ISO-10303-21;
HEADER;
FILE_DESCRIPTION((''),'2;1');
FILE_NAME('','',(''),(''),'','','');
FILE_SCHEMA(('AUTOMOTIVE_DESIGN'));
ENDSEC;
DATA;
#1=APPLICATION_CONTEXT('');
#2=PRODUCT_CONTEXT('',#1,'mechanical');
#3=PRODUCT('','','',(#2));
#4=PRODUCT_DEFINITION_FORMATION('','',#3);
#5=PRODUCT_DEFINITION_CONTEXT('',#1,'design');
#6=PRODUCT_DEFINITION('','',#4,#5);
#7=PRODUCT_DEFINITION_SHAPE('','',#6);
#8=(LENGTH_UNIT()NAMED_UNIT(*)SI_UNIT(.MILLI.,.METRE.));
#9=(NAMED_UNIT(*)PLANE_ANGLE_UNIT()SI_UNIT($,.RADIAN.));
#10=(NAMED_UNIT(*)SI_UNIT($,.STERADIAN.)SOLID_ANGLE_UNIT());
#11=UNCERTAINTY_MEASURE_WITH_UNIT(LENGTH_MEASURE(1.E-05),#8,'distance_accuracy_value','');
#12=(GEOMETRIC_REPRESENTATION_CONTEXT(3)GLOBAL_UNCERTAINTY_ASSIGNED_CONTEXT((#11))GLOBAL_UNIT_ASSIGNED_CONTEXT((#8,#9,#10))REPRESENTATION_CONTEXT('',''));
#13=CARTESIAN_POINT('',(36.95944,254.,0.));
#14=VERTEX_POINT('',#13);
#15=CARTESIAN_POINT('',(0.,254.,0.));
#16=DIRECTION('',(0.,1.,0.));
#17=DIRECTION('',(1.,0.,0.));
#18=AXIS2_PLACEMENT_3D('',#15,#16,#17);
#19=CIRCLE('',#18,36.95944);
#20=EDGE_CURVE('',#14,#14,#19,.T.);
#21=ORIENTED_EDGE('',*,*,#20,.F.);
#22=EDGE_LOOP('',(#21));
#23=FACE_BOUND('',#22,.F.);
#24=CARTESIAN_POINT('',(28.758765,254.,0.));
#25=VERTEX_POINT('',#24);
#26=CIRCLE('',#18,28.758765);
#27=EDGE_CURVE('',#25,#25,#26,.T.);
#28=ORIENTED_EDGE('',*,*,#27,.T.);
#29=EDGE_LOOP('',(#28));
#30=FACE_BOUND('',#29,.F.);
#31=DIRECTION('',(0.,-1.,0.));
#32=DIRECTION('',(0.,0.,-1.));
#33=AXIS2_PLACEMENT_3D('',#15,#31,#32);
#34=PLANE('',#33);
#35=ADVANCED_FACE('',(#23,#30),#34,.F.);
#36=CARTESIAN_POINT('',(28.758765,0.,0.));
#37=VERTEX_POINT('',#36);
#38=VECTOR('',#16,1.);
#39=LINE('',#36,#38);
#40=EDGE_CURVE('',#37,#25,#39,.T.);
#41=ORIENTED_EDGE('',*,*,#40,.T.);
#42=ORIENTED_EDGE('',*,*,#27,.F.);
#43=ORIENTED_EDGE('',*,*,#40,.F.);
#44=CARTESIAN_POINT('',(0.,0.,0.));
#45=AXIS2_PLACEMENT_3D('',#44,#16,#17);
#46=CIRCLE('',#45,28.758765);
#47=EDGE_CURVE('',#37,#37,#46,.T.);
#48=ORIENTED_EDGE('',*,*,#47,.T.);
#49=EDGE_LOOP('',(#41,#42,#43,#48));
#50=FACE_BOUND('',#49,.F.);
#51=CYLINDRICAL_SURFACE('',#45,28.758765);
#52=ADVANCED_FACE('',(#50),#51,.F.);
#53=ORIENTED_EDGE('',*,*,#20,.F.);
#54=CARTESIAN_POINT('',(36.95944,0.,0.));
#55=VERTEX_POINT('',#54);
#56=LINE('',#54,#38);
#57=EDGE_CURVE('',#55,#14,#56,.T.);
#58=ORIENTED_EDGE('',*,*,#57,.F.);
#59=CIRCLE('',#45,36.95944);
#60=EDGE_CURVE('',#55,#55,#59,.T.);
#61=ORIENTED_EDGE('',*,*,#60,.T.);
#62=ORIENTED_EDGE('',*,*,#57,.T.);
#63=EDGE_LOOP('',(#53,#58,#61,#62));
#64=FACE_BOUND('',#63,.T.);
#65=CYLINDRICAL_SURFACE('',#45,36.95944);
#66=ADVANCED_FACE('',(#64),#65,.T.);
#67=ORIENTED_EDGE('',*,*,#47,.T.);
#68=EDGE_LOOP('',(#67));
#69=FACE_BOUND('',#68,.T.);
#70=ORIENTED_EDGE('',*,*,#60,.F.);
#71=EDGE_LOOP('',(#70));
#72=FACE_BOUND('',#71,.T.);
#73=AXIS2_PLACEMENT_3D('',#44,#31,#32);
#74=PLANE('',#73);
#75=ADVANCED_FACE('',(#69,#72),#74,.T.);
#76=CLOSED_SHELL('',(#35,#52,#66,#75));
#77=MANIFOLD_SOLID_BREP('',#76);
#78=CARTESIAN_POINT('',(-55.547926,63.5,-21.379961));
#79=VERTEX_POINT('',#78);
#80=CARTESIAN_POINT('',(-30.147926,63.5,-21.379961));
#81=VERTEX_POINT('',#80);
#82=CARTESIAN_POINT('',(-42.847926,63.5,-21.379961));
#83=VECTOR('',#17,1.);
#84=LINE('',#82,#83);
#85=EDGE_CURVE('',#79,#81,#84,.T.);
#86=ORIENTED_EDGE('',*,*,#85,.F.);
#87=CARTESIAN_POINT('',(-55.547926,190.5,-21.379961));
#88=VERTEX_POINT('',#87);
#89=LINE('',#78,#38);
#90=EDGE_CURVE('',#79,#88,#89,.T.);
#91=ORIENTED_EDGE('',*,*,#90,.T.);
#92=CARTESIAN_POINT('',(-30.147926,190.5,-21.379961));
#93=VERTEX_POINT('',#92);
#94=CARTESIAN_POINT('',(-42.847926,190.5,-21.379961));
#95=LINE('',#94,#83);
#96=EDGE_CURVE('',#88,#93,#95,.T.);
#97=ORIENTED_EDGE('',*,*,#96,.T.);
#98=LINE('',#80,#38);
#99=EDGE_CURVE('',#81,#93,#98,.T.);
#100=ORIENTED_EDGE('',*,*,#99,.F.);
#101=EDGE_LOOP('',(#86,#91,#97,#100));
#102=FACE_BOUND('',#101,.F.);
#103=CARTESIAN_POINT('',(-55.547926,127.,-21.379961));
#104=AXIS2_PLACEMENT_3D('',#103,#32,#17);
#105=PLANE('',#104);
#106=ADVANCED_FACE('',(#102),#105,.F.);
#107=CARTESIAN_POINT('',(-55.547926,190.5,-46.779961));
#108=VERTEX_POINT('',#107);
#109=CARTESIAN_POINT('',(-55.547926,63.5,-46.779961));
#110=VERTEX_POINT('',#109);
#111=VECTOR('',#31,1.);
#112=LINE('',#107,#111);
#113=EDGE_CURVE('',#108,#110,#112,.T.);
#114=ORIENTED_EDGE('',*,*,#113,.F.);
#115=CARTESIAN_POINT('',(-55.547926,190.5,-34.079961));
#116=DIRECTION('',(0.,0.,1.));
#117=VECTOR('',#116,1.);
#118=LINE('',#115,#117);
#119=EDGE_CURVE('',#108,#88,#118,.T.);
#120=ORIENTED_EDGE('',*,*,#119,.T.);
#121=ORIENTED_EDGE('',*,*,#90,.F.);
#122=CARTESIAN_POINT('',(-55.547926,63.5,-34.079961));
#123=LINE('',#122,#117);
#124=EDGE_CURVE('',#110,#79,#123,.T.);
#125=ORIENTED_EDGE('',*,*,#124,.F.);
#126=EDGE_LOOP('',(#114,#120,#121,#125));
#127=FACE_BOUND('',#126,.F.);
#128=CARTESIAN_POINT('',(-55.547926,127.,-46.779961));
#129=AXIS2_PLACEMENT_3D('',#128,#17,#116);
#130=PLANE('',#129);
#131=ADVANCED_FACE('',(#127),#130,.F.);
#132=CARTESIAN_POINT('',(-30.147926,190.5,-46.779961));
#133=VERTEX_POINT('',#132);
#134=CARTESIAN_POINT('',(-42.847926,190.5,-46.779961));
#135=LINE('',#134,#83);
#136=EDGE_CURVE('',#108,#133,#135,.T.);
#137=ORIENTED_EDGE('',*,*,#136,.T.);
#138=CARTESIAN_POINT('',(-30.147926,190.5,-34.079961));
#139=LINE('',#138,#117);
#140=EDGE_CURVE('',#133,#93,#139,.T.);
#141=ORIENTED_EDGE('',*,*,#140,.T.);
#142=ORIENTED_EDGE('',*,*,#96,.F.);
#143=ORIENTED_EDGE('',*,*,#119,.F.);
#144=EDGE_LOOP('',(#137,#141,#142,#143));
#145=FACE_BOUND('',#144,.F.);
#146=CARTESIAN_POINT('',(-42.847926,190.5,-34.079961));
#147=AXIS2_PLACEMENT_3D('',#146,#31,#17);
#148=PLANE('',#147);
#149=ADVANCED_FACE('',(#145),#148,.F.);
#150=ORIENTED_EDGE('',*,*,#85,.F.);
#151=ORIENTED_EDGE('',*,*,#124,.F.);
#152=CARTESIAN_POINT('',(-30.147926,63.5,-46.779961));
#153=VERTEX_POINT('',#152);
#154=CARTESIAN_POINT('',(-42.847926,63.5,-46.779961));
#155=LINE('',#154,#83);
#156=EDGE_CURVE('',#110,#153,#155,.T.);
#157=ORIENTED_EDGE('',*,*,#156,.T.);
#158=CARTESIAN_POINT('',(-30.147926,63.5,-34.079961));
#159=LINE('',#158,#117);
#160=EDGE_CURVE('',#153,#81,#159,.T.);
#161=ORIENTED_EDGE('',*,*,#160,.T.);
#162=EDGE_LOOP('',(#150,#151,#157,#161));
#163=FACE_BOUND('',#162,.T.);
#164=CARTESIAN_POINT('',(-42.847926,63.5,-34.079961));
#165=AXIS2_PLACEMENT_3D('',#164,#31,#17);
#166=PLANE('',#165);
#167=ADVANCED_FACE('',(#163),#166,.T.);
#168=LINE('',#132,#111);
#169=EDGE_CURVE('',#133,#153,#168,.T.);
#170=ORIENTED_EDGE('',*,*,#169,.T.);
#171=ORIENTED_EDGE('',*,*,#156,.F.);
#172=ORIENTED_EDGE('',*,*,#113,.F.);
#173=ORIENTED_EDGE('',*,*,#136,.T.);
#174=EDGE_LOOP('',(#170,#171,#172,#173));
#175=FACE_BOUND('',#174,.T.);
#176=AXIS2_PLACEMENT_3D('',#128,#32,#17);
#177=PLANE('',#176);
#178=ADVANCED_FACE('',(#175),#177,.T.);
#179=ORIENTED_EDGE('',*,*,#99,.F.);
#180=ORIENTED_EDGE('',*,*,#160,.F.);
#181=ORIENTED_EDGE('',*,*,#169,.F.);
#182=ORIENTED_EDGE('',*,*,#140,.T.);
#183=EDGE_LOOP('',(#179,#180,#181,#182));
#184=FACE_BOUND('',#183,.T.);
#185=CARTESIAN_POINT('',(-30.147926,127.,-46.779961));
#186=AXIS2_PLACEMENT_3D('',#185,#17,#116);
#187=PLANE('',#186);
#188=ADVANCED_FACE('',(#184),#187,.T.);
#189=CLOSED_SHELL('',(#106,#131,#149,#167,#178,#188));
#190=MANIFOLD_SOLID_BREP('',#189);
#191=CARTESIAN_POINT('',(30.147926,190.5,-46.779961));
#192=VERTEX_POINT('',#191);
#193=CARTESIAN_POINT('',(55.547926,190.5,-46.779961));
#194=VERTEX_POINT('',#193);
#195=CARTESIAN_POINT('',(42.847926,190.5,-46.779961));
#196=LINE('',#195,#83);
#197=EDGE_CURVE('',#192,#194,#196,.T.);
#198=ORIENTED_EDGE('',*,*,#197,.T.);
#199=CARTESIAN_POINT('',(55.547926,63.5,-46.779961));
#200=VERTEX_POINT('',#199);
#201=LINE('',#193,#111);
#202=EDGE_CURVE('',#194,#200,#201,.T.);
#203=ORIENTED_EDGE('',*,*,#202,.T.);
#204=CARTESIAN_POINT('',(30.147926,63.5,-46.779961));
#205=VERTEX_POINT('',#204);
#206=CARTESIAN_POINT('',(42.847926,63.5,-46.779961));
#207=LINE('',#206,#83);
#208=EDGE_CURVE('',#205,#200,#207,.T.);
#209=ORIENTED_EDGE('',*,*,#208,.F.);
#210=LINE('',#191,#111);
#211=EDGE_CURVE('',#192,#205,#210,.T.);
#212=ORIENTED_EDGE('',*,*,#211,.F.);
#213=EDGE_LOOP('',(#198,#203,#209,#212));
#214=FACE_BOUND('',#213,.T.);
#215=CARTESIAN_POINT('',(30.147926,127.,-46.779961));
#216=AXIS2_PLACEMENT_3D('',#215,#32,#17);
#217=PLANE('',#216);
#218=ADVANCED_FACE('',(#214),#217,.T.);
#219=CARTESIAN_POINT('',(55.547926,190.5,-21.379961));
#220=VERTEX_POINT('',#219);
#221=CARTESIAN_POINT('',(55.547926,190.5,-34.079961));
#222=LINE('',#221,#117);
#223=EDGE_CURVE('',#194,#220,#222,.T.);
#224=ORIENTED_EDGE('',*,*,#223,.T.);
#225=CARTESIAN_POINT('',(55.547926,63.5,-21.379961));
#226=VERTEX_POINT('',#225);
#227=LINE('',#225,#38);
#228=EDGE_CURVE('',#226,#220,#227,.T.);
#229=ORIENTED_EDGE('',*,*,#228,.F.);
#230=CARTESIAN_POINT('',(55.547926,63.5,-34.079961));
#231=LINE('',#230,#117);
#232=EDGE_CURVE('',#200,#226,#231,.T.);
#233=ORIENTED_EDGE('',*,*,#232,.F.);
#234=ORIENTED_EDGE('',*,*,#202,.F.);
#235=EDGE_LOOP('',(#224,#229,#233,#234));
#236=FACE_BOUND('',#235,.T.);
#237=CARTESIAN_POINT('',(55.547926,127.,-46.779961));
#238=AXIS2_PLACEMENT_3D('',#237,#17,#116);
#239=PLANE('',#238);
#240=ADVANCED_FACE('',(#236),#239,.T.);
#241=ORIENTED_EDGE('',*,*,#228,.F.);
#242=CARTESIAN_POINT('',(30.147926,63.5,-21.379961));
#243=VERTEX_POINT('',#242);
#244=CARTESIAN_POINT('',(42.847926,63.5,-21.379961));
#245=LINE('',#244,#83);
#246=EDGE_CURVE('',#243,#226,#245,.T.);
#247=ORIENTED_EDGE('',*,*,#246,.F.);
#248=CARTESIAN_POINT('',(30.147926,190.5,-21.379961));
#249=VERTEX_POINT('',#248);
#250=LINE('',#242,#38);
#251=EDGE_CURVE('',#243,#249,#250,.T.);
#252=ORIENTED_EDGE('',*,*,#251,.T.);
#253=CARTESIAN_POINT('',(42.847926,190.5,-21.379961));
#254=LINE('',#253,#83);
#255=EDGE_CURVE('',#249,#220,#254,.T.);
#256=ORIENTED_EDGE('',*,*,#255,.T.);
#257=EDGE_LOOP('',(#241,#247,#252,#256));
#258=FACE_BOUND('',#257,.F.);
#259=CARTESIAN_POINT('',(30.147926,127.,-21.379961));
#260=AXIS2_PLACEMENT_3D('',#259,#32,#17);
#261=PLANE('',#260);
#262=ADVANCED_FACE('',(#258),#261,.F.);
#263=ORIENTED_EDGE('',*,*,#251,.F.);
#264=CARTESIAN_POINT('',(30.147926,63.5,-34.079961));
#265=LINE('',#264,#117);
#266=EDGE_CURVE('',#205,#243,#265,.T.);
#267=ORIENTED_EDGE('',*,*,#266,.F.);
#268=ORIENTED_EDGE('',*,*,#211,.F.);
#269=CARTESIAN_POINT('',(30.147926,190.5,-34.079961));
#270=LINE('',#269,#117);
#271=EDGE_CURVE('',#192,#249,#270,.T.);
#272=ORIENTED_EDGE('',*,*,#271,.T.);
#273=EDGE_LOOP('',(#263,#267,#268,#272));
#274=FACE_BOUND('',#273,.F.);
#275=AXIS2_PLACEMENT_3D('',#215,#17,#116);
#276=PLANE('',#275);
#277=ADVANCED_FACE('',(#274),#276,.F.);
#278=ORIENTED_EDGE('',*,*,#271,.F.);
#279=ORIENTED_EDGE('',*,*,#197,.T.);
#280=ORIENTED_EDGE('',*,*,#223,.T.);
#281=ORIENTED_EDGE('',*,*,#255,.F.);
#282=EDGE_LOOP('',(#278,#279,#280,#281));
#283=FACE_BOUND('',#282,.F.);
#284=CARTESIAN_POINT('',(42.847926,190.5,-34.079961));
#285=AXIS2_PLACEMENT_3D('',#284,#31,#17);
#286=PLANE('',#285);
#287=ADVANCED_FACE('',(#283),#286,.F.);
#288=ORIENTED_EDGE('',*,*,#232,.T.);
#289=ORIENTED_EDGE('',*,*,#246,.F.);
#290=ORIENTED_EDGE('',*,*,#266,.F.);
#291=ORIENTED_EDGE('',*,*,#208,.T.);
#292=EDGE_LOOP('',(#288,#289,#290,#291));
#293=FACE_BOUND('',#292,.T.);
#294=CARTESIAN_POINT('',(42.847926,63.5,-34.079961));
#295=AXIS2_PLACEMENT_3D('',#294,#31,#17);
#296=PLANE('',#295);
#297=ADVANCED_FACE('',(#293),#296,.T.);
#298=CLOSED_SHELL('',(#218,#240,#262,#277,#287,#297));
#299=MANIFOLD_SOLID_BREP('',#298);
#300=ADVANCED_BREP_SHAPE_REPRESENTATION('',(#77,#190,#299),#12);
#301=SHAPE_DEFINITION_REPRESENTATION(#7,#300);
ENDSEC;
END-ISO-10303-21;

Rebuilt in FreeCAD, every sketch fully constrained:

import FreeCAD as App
import Part
import Sketcher
Q = App.Units.Quantity

doc = App.newDocument("Part")
body = doc.addObject("PartDesign::Body", "Body")

# Sketch on XZ plane
sketch1 = doc.addObject("Sketcher::SketchObject", "Sketch")
body.addObject(sketch1)
sketch1.AttachmentSupport = (doc.XZ_Plane, [""])
sketch1.MapMode = "FlatFace"
sketch1.addGeometry(Part.Circle(App.Vector(0, 0, 0), App.Vector(0, 0, 1), 37), False)
sketch1.addGeometry(Part.Circle(App.Vector(0, 0, 0), App.Vector(0, 0, 1), 29), False)
sketch1.addConstraint(Sketcher.Constraint("Coincident", 0, 3, -1, 1))
sketch1.addConstraint(Sketcher.Constraint("Coincident", 1, 3, -1, 1))
sketch1.addConstraint(Sketcher.Constraint("Diameter", 0, 73.91888))
sketch1.addConstraint(Sketcher.Constraint("Diameter", 1, 57.51753))

# Sketch on XY plane
sketch2 = doc.addObject("Sketcher::SketchObject", "Sketch001")
body.addObject(sketch2)
sketch2.AttachmentSupport = (doc.XY_Plane, [""])
sketch2.MapMode = "FlatFace"
sketch2.addGeometry(Part.LineSegment(App.Vector(0, 0, 0), App.Vector(0, 254, 0)), False)
sketch2.addConstraint(Sketcher.Constraint("Vertical", 0))
sketch2.addConstraint(Sketcher.Constraint("Coincident", 0, 1, -1, 1))
sketch2.addConstraint(Sketcher.Constraint("DistanceY", 0, 1, 0, 2, Q("10 in")))
doc.recompute()

additivepipe = doc.addObject("PartDesign::AdditivePipe", "AdditivePipe")
body.addObject(additivepipe)
additivepipe.Profile = sketch1
additivepipe.Spine = (sketch2, ["Edge1"])
body2 = doc.addObject("PartDesign::Body", "Body001")
body2.AllowCompound = True

# Sketch on XZ plane
sketch3 = doc.addObject("Sketcher::SketchObject", "Sketch002")
body2.addObject(sketch3)
sketch3.AttachmentSupport = (doc.getObject("XZ_Plane001"), [""])
sketch3.MapMode = "FlatFace"
sketch3.AttachmentOffset = App.Placement(App.Vector(0, 0, -5 * 25.4), App.Rotation())
sketch3.addGeometry(Part.LineSegment(App.Vector(30, -21, 0), App.Vector(30, -47, 0)), False)
sketch3.addGeometry(Part.LineSegment(App.Vector(30, -47, 0), App.Vector(56, -47, 0)), False)
sketch3.addGeometry(Part.LineSegment(App.Vector(56, -47, 0), App.Vector(56, -21, 0)), False)
sketch3.addGeometry(Part.LineSegment(App.Vector(56, -21, 0), App.Vector(30, -21, 0)), False)
sketch3.addGeometry(Part.LineSegment(App.Vector(-56, -21, 0), App.Vector(-56, -47, 0)), False)
sketch3.addGeometry(Part.LineSegment(App.Vector(-56, -47, 0), App.Vector(-30, -47, 0)), False)
sketch3.addGeometry(Part.LineSegment(App.Vector(-30, -47, 0), App.Vector(-30, -21, 0)), False)
sketch3.addGeometry(Part.LineSegment(App.Vector(-30, -21, 0), App.Vector(-56, -21, 0)), False)
sketch3.addConstraint(Sketcher.Constraint("Coincident", 0, 2, 1, 1))
sketch3.addConstraint(Sketcher.Constraint("Coincident", 1, 2, 2, 1))
sketch3.addConstraint(Sketcher.Constraint("Coincident", 2, 2, 3, 1))
sketch3.addConstraint(Sketcher.Constraint("Coincident", 3, 2, 0, 1))
sketch3.addConstraint(Sketcher.Constraint("Coincident", 4, 2, 5, 1))
sketch3.addConstraint(Sketcher.Constraint("Coincident", 5, 2, 6, 1))
sketch3.addConstraint(Sketcher.Constraint("Coincident", 6, 2, 7, 1))
sketch3.addConstraint(Sketcher.Constraint("Coincident", 7, 2, 4, 1))
sketch3.addConstraint(Sketcher.Constraint("Vertical", 0))
sketch3.addConstraint(Sketcher.Constraint("Horizontal", 1))
sketch3.addConstraint(Sketcher.Constraint("Vertical", 2))
sketch3.addConstraint(Sketcher.Constraint("Horizontal", 3))
sketch3.addConstraint(Sketcher.Constraint("Vertical", 4))
sketch3.addConstraint(Sketcher.Constraint("Horizontal", 5))
sketch3.addConstraint(Sketcher.Constraint("Vertical", 6))
sketch3.addConstraint(Sketcher.Constraint("Horizontal", 7))
sketch3.addConstraint(Sketcher.Constraint("Symmetric", 1, 2, 4, 2, -2))
sketch3.addConstraint(Sketcher.Constraint("Symmetric", 3, 2, 6, 2, -2))
sketch3.addConstraint(Sketcher.Constraint("Equal", 7, 0))
sketch3.addConstraint(Sketcher.Constraint("DistanceX", 1, 1, 1, 2, Q("1 in")))
sketch3.addConstraint(Sketcher.Constraint("DistanceY", 0, 2, -1, 1, 46.779961))
sketch3.addConstraint(Sketcher.Constraint("DistanceX", 4, 2, 1, 2, 111.095852))
pad1 = doc.addObject("PartDesign::Pad", "Pad")
body2.addObject(pad1)
pad1.Profile = sketch3
pad1.Type = "TwoLengths"
pad1.Length = Q("2.5 in")
pad1.Length2 = Q("2.5 in")

doc.recompute()
